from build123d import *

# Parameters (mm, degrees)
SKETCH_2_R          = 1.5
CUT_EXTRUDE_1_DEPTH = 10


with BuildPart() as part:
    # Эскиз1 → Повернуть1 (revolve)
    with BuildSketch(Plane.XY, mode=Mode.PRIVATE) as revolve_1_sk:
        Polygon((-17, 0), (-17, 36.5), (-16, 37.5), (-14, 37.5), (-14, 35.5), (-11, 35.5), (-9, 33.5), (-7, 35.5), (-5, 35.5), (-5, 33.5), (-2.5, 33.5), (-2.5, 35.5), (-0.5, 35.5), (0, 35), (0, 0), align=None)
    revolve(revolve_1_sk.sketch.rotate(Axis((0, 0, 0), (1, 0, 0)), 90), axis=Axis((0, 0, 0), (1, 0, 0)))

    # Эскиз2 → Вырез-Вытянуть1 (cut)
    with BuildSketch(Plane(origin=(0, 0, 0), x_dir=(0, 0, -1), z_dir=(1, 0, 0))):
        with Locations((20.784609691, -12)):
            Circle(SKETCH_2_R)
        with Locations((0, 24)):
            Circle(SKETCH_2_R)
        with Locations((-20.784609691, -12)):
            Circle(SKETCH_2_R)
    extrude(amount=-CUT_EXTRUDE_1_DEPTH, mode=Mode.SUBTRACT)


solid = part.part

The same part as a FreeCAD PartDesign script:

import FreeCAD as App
import Part
import Sketcher
from FreeCAD import Vector
Q = App.Units.Quantity


def add_polygon(sketch, points):
    """Adds a closed chain of lines whose ends are joined by coincident constraints."""
    first, n = sketch.GeometryCount, len(points)
    for a, b in zip(points, points[1:] + points[:1]):
        sketch.addGeometry(Part.LineSegment(App.Vector(*a, 0), App.Vector(*b, 0)), False)
    for i in range(n):
        sketch.addConstraint(Sketcher.Constraint("Coincident", first + i, 2, first + (i + 1) % n, 1))

doc = App.newDocument("Part")
body = doc.addObject("PartDesign::Body", "Body")

sketch1 = body.newObject("Sketcher::SketchObject", "Sketch")
sketch1.AttachmentSupport = (doc.getObject("XY_Plane"), [""])
sketch1.MapMode = "FlatFace"
add_polygon(sketch1, [(-17, 36.5), (-17, 0), (0, 0), (0, 35), (-0.5, 35.5), (-2.5, 35.5), (-2.5, 33.5), (-5, 33.5), (-5, 35.5), (-7, 35.5), (-9, 33.5), (-11, 35.5), (-14, 35.5), (-14, 37.5), (-16, 37.5)])
sketch1.addConstraint(Sketcher.Constraint("Vertical", 0))
sketch1.addConstraint(Sketcher.Constraint("Horizontal", 1))
sketch1.addConstraint(Sketcher.Constraint("Vertical", 2))
sketch1.addConstraint(Sketcher.Constraint("Horizontal", 4))
sketch1.addConstraint(Sketcher.Constraint("Vertical", 5))
sketch1.addConstraint(Sketcher.Constraint("Horizontal", 6))
sketch1.addConstraint(Sketcher.Constraint("Vertical", 7))
sketch1.addConstraint(Sketcher.Constraint("Horizontal", 8))
sketch1.addConstraint(Sketcher.Constraint("Horizontal", 11))
sketch1.addConstraint(Sketcher.Constraint("Vertical", 12))
sketch1.addConstraint(Sketcher.Constraint("Horizontal", 13))
sketch1.addConstraint(Sketcher.Constraint("Coincident", 1, 2, -1, 1))
sketch1.addConstraint(Sketcher.Constraint("Perpendicular", 3, 9))
sketch1.addConstraint(Sketcher.Constraint("Perpendicular", 9, 10))
sketch1.addConstraint(Sketcher.Constraint("Perpendicular", 10, 14))
sketch1.addConstraint(Sketcher.Constraint("Horizontal", 4, 2, 7, 2))
sketch1.addConstraint(Sketcher.Constraint("Horizontal", 6, 2, 9, 2))
sketch1.addConstraint(Sketcher.Constraint("Horizontal", 8, 2, 10, 2))
sketch1.addConstraint(Sketcher.Constraint("Equal", 4, 8))
sketch1.addConstraint(Sketcher.Constraint("Equal", 8, 13))
sketch1.addConstraint(Sketcher.Constraint("Equal", 13, 5))
sketch1.addConstraint(Sketcher.Constraint("Equal", 7, 12))
sketch1.addConstraint(Sketcher.Constraint("Equal", 9, 10))
sketch1.addConstraint(Sketcher.Constraint("DistanceX", 1, 1, 1, 2, Q("17 mm")))
sketch1.addConstraint(Sketcher.Constraint("DistanceX", 4, 2, 4, 1, Q("2 mm")))
sketch1.addConstraint(Sketcher.Constraint("DistanceX", 11, 2, 11, 1, Q("3 mm")))
sketch1.addConstraint(Sketcher.Constraint("DistanceY", 2, 1, 2, 2, Q("35 mm")))
sketch1.addConstraint(Sketcher.Constraint("DistanceX", 6, 2, 6, 1, Q("2.5 mm")))
sketch1.addConstraint(Sketcher.Constraint("DistanceY", 0, 2, 0, 1, Q("36.5 mm")))
revolution = body.newObject("PartDesign::Revolution", "Revolution")
revolution.Profile = sketch1
revolution.ReferenceAxis = (sketch1, ["H_Axis"])
revolution.Angle = 360

sketch2 = body.newObject("Sketcher::SketchObject", "Sketch001")
sketch2.AttachmentSupport = (doc.getObject("YZ_Plane"), [""])
sketch2.MapMode = "FlatFace"
sketch2.addGeometry(Part.Circle(Vector(-12, -20.78461, 0), Vector(0, 0, 1), 1.5), False)
sketch2.addGeometry(Part.Circle(Vector(24, 0, 0), Vector(0, 0, 1), 1.5), False)
sketch2.addGeometry(Part.Circle(Vector(-12, 20.78461, 0), Vector(0, 0, 1), 1.5), False)
sketch2.addConstraint(Sketcher.Constraint("Equal", 0, 1))
sketch2.addConstraint(Sketcher.Constraint("Equal", 1, 2))
sketch2.addConstraint(Sketcher.Constraint("Symmetric", 0, 3, 2, 3, -1))
sketch2.addConstraint(Sketcher.Constraint("PointOnObject", 1, 3, -1))
sketch2.addConstraint(Sketcher.Constraint("Diameter", 0, Q("3 mm")))
sketch2.addConstraint(Sketcher.Constraint("DistanceX", 0, 3, -1, 1, Q("12 mm")))
sketch2.addConstraint(Sketcher.Constraint("DistanceX", -1, 1, 1, 3, Q("24 mm")))
sketch2.addConstraint(Sketcher.Constraint("DistanceY", 0, 3, -1, 1, Q("20.78461 mm")))
pocket1 = body.newObject("PartDesign::Pocket", "Pocket")
pocket1.Profile = sketch2
pocket1.Length = 10

doc.recompute()
